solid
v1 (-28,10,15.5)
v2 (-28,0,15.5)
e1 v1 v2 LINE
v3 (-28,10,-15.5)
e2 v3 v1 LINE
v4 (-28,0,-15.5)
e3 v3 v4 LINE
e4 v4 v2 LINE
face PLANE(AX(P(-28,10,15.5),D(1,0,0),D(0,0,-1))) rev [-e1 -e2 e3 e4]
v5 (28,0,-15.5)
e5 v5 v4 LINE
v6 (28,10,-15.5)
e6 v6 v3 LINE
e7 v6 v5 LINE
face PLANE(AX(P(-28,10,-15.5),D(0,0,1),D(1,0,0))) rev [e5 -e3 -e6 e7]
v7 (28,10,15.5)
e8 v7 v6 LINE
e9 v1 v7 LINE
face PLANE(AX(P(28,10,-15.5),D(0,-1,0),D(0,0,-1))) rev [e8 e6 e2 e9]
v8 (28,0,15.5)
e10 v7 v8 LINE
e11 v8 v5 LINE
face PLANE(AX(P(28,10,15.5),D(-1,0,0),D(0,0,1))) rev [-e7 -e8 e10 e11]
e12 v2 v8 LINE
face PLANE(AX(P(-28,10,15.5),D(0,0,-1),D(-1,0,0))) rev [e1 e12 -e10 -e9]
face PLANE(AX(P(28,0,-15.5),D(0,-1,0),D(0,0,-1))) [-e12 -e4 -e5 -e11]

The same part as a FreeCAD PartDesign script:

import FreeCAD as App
import Part
import Sketcher
from FreeCAD import Vector


def add_polygon(sketch, points):
    """Adds a closed chain of lines whose ends are joined by coincident constraints."""
    first, n = sketch.GeometryCount, len(points)
    for a, b in zip(points, points[1:] + points[:1]):
        sketch.addGeometry(Part.LineSegment(App.Vector(*a, 0), App.Vector(*b, 0)), False)
    for i in range(n):
        sketch.addConstraint(Sketcher.Constraint("Coincident", first + i, 2, first + (i + 1) % n, 1))

doc = App.newDocument("Part")
body = doc.addObject("PartDesign::Body", "Body")

sketch1 = body.newObject("Sketcher::SketchObject", "Sketch")
sketch1.AttachmentSupport = (doc.getObject("XZ_Plane"), [""])
sketch1.MapMode = "FlatFace"
add_polygon(sketch1, [(-28, -16), (-28, 16), (28, 16), (28, -16)])
sketch1.addConstraint([
    Sketcher.Constraint("Vertical", 0),
    Sketcher.Constraint("Horizontal", 1),
    Sketcher.Constraint("Vertical", 2),
    Sketcher.Constraint("Horizontal", 3),
    Sketcher.Constraint("Symmetric", 0, 2, 2, 2, -1, 1),
    Sketcher.Constraint("DistanceX", 1, 1, 1, 2, 56.0),
    Sketcher.Constraint("DistanceY", 0, 1, 0, 2, 31.0),
])
pad1 = body.newObject("PartDesign::Pad", "Pad")
pad1.Profile = sketch1
pad1.Length = 10
pad1.Reversed = True

doc.recompute()
